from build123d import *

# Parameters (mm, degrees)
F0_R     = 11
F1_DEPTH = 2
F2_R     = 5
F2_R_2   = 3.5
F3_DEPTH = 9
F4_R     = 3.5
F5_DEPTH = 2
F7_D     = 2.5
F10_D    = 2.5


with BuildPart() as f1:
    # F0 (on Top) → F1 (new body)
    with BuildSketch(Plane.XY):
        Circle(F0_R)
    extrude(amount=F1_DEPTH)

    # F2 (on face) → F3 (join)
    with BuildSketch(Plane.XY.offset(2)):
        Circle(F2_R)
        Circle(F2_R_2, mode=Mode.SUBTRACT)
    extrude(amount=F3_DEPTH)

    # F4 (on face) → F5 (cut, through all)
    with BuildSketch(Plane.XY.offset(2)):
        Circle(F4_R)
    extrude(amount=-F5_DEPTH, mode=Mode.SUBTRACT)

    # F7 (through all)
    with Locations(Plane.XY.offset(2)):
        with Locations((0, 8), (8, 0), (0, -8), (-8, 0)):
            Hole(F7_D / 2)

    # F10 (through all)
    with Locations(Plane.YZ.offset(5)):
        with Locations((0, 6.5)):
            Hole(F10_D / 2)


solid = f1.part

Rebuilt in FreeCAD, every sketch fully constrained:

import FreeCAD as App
import Part
import Sketcher

V = App.Vector
Q = App.Units.Quantity

doc = App.newDocument("Part")
body = doc.addObject("PartDesign::Body", "Body")

# Sketch on XY plane
sketch1 = doc.addObject("Sketcher::SketchObject", "Sketch")
body.addObject(sketch1)
sketch1.AttachmentSupport = (doc.XY_Plane, [""])
sketch1.MapMode = "FlatFace"
sketch1.addGeometry(Part.Circle(V(0, 0, 0), V(0, 0, 1), 11), False)
sketch1.addConstraint([
    Sketcher.Constraint("Coincident", 0, 3, -1, 1),
    Sketcher.Constraint("Diameter", 0, Q("22 mm")),
])
pad1 = doc.addObject("PartDesign::Pad", "Pad")
body.addObject(pad1)
pad1.Profile = sketch1
pad1.Length = 2

# Sketch on XY plane
sketch2 = doc.addObject("Sketcher::SketchObject", "Sketch001")
body.addObject(sketch2)
sketch2.AttachmentSupport = (doc.XY_Plane, [""])
sketch2.MapMode = "FlatFace"
sketch2.AttachmentOffset = App.Placement(V(0, 0, 2), App.Rotation())
sketch2.addGeometry([
    Part.Circle(V(0, 0, 0), V(0, 0, 1), 5),
    Part.Circle(V(0, 0, 0), V(0, 0, 1), 3.5),
], False)
sketch2.addConstraint([
    Sketcher.Constraint("Coincident", 0, 3, -1, 1),
    Sketcher.Constraint("Coincident", 1, 3, -1, 1),
    Sketcher.Constraint("Diameter", 0, Q("10 mm")),
    Sketcher.Constraint("Diameter", 1, Q("7 mm")),
])
pad2 = doc.addObject("PartDesign::Pad", "Pad001")
body.addObject(pad2)
pad2.Profile = sketch2
pad2.Length = 9

# Sketch on XY plane
sketch3 = doc.addObject("Sketcher::SketchObject", "Sketch002")
body.addObject(sketch3)
sketch3.AttachmentSupport = (doc.XY_Plane, [""])
sketch3.MapMode = "FlatFace"
sketch3.AttachmentOffset = App.Placement(V(0, 0, 2), App.Rotation())
sketch3.addGeometry(Part.Circle(V(0, 0, 0), V(0, 0, 1), 3.5), False)
sketch3.addConstraint([
    Sketcher.Constraint("Coincident", 0, 3, -1, 1),
    Sketcher.Constraint("Diameter", 0, Q("7 mm")),
])
pocket1 = doc.addObject("PartDesign::Pocket", "Pocket")
body.addObject(pocket1)
pocket1.Profile = sketch3
pocket1.Type = "ThroughAll"

# Sketch on XY plane
sketch4 = doc.addObject("Sketcher::SketchObject", "Sketch003")
body.addObject(sketch4)
sketch4.AttachmentSupport = (doc.XY_Plane, [""])
sketch4.MapMode = "FlatFace"
sketch4.AttachmentOffset = App.Placement(V(0, 0, 2), App.Rotation())
sketch4.addGeometry([
    Part.Circle(V(0, 8, 0), V(0, 0, 1), 1.2),
    Part.Circle(V(8, 0, 0), V(0, 0, 1), 1.2),
    Part.Circle(V(0, -8, 0), V(0, 0, 1), 1.2),
    Part.Circle(V(-8, 0, 0), V(0, 0, 1), 1.2),
], False)
sketch4.addConstraint([
    Sketcher.Constraint("Equal", 0, 1),
    Sketcher.Constraint("Equal", 1, 2),
    Sketcher.Constraint("Equal", 2, 3),
    Sketcher.Constraint("Symmetric", 0, 3, 2, 3, -1, 1),
    Sketcher.Constraint("Symmetric", 1, 3, 3, 3, -1, 1),
    Sketcher.Constraint("PointOnObject", 0, 3, -2),
    Sketcher.Constraint("PointOnObject", 1, 3, -1),
    Sketcher.Constraint("Diameter", 0, Q("2.5 mm")),
    Sketcher.Constraint("DistanceY", -1, 1, 0, 3, Q("8 mm")),
    Sketcher.Constraint("DistanceX", -1, 1, 1, 3, Q("8 mm")),
])
doc.recompute()
hole = doc.addObject("PartDesign::Hole", "Hole")
body.addObject(hole)
hole.Profile = sketch4
hole.ThreadType = "None"
hole.Diameter = 2.5
hole.DepthType = "ThroughAll"

# Sketch on YZ plane
sketch5 = doc.addObject("Sketcher::SketchObject", "Sketch004")
body.addObject(sketch5)
sketch5.AttachmentSupport = (doc.YZ_Plane, [""])
sketch5.MapMode = "FlatFace"
sketch5.AttachmentOffset = App.Placement(V(0, 0, 5), App.Rotation())
sketch5.addGeometry(Part.Circle(V(0, 6.5, 0), V(0, 0, 1), 1.2), False)
sketch5.addConstraint([
    Sketcher.Constraint("PointOnObject", 0, 3, -2),
    Sketcher.Constraint("Diameter", 0, Q("2.5 mm")),
    Sketcher.Constraint("DistanceY", -1, 1, 0, 3, Q("6.5 mm")),
])
doc.recompute()
hole2 = doc.addObject("PartDesign::Hole", "Hole001")
body.addObject(hole2)
hole2.Profile = sketch5
hole2.ThreadType = "None"
hole2.Diameter = 2.5
hole2.DepthType = "ThroughAll"

doc.recompute()
